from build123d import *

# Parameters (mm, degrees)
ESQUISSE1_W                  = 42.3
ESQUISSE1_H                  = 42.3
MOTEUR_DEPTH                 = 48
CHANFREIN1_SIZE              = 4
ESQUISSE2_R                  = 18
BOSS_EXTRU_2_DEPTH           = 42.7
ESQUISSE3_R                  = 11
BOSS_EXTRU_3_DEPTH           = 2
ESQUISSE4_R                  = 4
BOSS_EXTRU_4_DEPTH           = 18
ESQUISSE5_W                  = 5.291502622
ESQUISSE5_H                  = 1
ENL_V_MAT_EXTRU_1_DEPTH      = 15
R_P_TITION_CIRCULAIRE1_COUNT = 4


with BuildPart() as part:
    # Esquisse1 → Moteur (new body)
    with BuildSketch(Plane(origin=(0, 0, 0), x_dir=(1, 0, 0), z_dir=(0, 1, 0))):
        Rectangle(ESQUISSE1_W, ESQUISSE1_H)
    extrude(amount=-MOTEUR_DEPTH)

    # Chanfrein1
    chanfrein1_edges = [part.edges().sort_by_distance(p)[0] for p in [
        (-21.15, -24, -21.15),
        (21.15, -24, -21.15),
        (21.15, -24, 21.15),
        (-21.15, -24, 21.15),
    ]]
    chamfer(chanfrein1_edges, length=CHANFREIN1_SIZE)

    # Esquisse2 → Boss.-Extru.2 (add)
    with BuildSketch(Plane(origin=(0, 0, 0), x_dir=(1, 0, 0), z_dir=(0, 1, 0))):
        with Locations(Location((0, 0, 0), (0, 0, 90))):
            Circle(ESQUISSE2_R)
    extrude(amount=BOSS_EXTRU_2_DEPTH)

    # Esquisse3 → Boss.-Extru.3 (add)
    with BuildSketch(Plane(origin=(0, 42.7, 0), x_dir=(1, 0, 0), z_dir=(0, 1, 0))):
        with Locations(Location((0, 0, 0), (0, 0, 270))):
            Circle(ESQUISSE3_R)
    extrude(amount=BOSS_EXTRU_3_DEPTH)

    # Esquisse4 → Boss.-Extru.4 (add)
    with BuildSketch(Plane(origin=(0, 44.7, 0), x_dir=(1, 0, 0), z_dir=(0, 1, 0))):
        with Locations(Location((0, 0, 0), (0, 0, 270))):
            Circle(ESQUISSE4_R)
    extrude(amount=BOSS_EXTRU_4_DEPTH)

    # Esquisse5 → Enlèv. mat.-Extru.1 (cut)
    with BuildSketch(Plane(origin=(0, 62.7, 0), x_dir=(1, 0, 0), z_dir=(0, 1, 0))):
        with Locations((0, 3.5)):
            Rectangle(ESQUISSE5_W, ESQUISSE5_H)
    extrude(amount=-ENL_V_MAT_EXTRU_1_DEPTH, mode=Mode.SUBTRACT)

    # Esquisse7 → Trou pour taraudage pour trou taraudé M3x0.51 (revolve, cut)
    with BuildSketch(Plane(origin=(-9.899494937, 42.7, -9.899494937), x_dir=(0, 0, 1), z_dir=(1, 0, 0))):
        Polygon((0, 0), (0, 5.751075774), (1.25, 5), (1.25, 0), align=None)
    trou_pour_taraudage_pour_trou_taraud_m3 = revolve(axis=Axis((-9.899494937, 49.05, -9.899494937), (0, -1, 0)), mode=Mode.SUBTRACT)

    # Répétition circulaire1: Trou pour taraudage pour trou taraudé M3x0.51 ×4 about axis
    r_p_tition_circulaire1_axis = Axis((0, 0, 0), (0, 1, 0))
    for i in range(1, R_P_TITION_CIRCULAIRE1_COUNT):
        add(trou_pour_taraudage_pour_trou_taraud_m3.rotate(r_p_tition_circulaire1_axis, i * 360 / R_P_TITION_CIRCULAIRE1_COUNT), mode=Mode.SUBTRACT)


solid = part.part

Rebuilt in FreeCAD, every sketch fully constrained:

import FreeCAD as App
import Part
import Sketcher

V = App.Vector
Q = App.Units.Quantity


def edges_at(feature, points):
    """Names of the edges that pass closest to the given points."""
    edges = feature.Shape.Edges
    near = lambda p: min(range(len(edges)), key=lambda i: edges[i].distToShape(Part.Vertex(*p))[0])
    return sorted({f"Edge{near(p) + 1}" for p in points})


def add_polygon(sketch, points):
    """Adds a closed chain of lines whose ends are joined by coincident constraints."""
    first, n = sketch.GeometryCount, len(points)
    for a, b in zip(points, points[1:] + points[:1]):
        sketch.addGeometry(Part.LineSegment(App.Vector(*a, 0), App.Vector(*b, 0)), False)
    for i in range(n):
        sketch.addConstraint(Sketcher.Constraint("Coincident", first + i, 2, first + (i + 1) % n, 1))

doc = App.newDocument("Part")
params = doc.addObject("Spreadsheet::Sheet", "Params")
for row, (alias, value) in enumerate([
    ("sketch1_width", "42.3 mm"),
    ("pad1_length", "48 mm"),
    ("chamfer_size", "4 mm"),
    ("sketch2_diameter", "36 mm"),
    ("pad2_length", "42.7 mm"),
    ("sketch3_diameter", "22 mm"),
    ("pad3_length", "2 mm"),
    ("sketch4_diameter", "8 mm"),
    ("pad4_length", "18 mm"),
    ("sketch5_height", "1 mm"),
    ("pocket1_length", "15 mm"),
    ("sketch6_width", "5 mm"),
    ("sketch6_height", "1.25 mm"),
    ("groove_angle", "360 deg"),
], start=1):
    params.set(f"A{row}", alias)
    params.set(f"B{row}", "=" + value)
    params.setAlias(f"B{row}", alias)

body = doc.addObject("PartDesign::Body", "Body")

# Sketch on XZ plane
sketch1 = body.newObject("Sketcher::SketchObject", "Sketch")
sketch1.AttachmentSupport = (doc.getObject("XZ_Plane"), [""])
sketch1.MapMode = "FlatFace"
add_polygon(sketch1, [(-21, -21), (-21, 21), (21, 21), (21, -21)])  # lines 0-3
sketch1.addConstraint([
    Sketcher.Constraint("Vertical", 0),
    Sketcher.Constraint("Horizontal", 1),
    Sketcher.Constraint("Vertical", 2),
    Sketcher.Constraint("Horizontal", 3),
    Sketcher.Constraint("Symmetric", 0, 2, 2, 2, -1, 1),
    Sketcher.Constraint("Equal", 3, 0),
    Sketcher.Constraint("DistanceX", 1, 1, 1, 2, 42.3),
])
sketch1.setExpression("Constraints[10]", "Params.sketch1_width")
pad1 = body.newObject("PartDesign::Pad", "Pad")
pad1.Profile = sketch1
pad1.setExpression("Length", "Params.pad1_length")
doc.recompute()

chamfer = body.newObject("PartDesign::Chamfer", "Chamfer")
chamfer.Base = (pad1, edges_at(pad1, [
    (-21.15, -24, -21.15),
    (21.15, -24, -21.15),
    (21.15, -24, 21.15),
    (-21.15, -24, 21.15),
]))
chamfer.setExpression("Size", "Params.chamfer_size")

# Sketch on XZ plane
sketch2 = body.newObject("Sketcher::SketchObject", "Sketch001")
sketch2.AttachmentSupport = (doc.getObject("XZ_Plane"), [""])
sketch2.MapMode = "FlatFace"
sketch2.addGeometry(Part.Circle(V(0, 0, 0), V(0, 0, 1), 18), False)
sketch2.addConstraint([
    Sketcher.Constraint("Coincident", 0, 3, -1, 1),
    Sketcher.Constraint("Diameter", 0, 36.0),
])
sketch2.setExpression("Constraints[1]", "Params.sketch2_diameter")
pad2 = body.newObject("PartDesign::Pad", "Pad001")
pad2.Profile = sketch2
pad2.setExpression("Length", "Params.pad2_length")
pad2.Reversed = True

# Sketch on XZ plane
sketch3 = body.newObject("Sketcher::SketchObject", "Sketch002")
sketch3.AttachmentSupport = (doc.getObject("XZ_Plane"), [""])
sketch3.MapMode = "FlatFace"
sketch3.AttachmentOffset = App.Placement(V(0, 0, -42.7), App.Rotation())
sketch3.addGeometry(Part.Circle(V(0, 0, 0), V(0, 0, 1), 11), False)
sketch3.addConstraint([
    Sketcher.Constraint("Coincident", 0, 3, -1, 1),
    Sketcher.Constraint("Diameter", 0, 22.0),
])
sketch3.setExpression("Constraints[1]", "Params.sketch3_diameter")
pad3 = body.newObject("PartDesign::Pad", "Pad002")
pad3.Profile = sketch3
pad3.setExpression("Length", "Params.pad3_length")
pad3.Reversed = True

# Sketch on XZ plane
sketch4 = body.newObject("Sketcher::SketchObject", "Sketch003")
sketch4.AttachmentSupport = (doc.getObject("XZ_Plane"), [""])
sketch4.MapMode = "FlatFace"
sketch4.AttachmentOffset = App.Placement(V(0, 0, -44.7), App.Rotation())
sketch4.addGeometry(Part.Circle(V(0, 0, 0), V(0, 0, 1), 4), False)
sketch4.addConstraint([
    Sketcher.Constraint("Coincident", 0, 3, -1, 1),
    Sketcher.Constraint("Diameter", 0, 8.0),
])
sketch4.setExpression("Constraints[1]", "Params.sketch4_diameter")
pad4 = body.newObject("PartDesign::Pad", "Pad003")
pad4.Profile = sketch4
pad4.setExpression("Length", "Params.pad4_length")
pad4.Reversed = True

# Sketch on XZ plane
sketch5 = body.newObject("Sketcher::SketchObject", "Sketch004")
sketch5.AttachmentSupport = (doc.getObject("XZ_Plane"), [""])
sketch5.MapMode = "FlatFace"
sketch5.AttachmentOffset = App.Placement(V(0, 0, -62.7), App.Rotation())
add_polygon(sketch5, [(-2.6, -4), (-2.6, -3), (2.6, -3), (2.6, -4)])  # lines 0-3
sketch5.addConstraint([
    Sketcher.Constraint("Vertical", 0),
    Sketcher.Constraint("Horizontal", 1),
    Sketcher.Constraint("Vertical", 2),
    Sketcher.Constraint("Horizontal", 3),
    Sketcher.Constraint("DistanceY", 0, 1, 0, 2, 1.0),
    Sketcher.Constraint("DistanceY", 0, 2, -1, 1, 3.0),
    Sketcher.Constraint("DistanceX", 1, 1, 1, 2, 5.291503),
    Sketcher.Constraint("DistanceX", 0, 2, -1, 1, 2.645751),
])
sketch5.setExpression("Constraints[8]", "Params.sketch5_height")
pocket1 = body.newObject("PartDesign::Pocket", "Pocket")
pocket1.Profile = sketch5
pocket1.setExpression("Length", "Params.pocket1_length")
pocket1.Reversed = True

# Sketch on YZ plane
sketch6 = body.newObject("Sketcher::SketchObject", "Sketch005")
sketch6.AttachmentSupport = (doc.getObject("YZ_Plane"), [""])
sketch6.MapMode = "FlatFace"
sketch6.AttachmentOffset = App.Placement(V(0, 0, -9.899495), App.Rotation())
add_polygon(sketch6, [(36.9, -9.9), (42.7, -9.9), (42.7, -8.6), (37.7, -8.6)])  # lines 0-3
sketch6.addGeometry(Part.LineSegment(V(42.7, -9.9, 0), V(36.9, -9.9, 0)), True)  # axis
sketch6.addConstraint([
    Sketcher.Constraint("Horizontal", 0),
    Sketcher.Constraint("Vertical", 1),
    Sketcher.Constraint("Horizontal", 2),
    Sketcher.Constraint("Horizontal", 4),
    Sketcher.Constraint("Coincident", 4, 1, 0, 2),
    Sketcher.Constraint("Equal", 0, 4),
    Sketcher.Constraint("DistanceX", 2, 2, 2, 1, 5.0),
    Sketcher.Constraint("Angle", 3, Q("-121 deg")),
    Sketcher.Constraint("DistanceY", 1, 1, 1, 2, 1.25),
    Sketcher.Constraint("DistanceX", -1, 1, 0, 2, 42.7),
    Sketcher.Constraint("DistanceY", 0, 2, -1, 1, 9.899495),
])
sketch6.setExpression("Constraints[10]", "Params.sketch6_width")
sketch6.setExpression("Constraints[12]", "Params.sketch6_height")
groove = body.newObject("PartDesign::Groove", "Groove")
groove.Profile = sketch6
groove.ReferenceAxis = (sketch6, ["Axis0"])
groove.setExpression("Angle", "Params.groove_angle")
doc.recompute()

polarpattern = body.newObject("PartDesign::PolarPattern", "PolarPattern")
polarpattern.Originals = [groove]
polarpattern.Axis = (doc.getObject("Y_Axis"), [""])
polarpattern.Angle = 360
polarpattern.Occurrences = 4
body.Tip = polarpattern

doc.recompute()
